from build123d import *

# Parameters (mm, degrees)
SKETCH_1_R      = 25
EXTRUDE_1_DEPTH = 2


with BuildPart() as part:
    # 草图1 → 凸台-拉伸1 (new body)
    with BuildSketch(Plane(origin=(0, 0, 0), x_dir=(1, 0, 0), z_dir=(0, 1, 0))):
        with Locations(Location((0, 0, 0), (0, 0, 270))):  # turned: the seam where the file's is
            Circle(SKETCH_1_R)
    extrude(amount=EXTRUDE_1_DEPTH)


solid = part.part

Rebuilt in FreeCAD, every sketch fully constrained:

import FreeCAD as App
import Part
import Sketcher
from FreeCAD import Vector
Q = App.Units.Quantity

doc = App.newDocument("Part")
body = doc.addObject("PartDesign::Body", "Body")

# Sketch on XZ plane
sketch1 = body.newObject("Sketcher::SketchObject", "Sketch")
sketch1.AttachmentSupport = (doc.getObject("XZ_Plane"), [""])
sketch1.MapMode = "FlatFace"
sketch1.addGeometry(Part.Circle(Vector(0, 0, 0), Vector(0, 0, 1), 25), False)
sketch1.addConstraint([
    Sketcher.Constraint("Coincident", 0, 3, -1, 1),
    Sketcher.Constraint("Diameter", 0, Q("50 mm")),
])
pad1 = body.newObject("PartDesign::Pad", "Pad")
pad1.Profile = sketch1
pad1.Length = 2
pad1.Reversed = True

doc.recompute()
